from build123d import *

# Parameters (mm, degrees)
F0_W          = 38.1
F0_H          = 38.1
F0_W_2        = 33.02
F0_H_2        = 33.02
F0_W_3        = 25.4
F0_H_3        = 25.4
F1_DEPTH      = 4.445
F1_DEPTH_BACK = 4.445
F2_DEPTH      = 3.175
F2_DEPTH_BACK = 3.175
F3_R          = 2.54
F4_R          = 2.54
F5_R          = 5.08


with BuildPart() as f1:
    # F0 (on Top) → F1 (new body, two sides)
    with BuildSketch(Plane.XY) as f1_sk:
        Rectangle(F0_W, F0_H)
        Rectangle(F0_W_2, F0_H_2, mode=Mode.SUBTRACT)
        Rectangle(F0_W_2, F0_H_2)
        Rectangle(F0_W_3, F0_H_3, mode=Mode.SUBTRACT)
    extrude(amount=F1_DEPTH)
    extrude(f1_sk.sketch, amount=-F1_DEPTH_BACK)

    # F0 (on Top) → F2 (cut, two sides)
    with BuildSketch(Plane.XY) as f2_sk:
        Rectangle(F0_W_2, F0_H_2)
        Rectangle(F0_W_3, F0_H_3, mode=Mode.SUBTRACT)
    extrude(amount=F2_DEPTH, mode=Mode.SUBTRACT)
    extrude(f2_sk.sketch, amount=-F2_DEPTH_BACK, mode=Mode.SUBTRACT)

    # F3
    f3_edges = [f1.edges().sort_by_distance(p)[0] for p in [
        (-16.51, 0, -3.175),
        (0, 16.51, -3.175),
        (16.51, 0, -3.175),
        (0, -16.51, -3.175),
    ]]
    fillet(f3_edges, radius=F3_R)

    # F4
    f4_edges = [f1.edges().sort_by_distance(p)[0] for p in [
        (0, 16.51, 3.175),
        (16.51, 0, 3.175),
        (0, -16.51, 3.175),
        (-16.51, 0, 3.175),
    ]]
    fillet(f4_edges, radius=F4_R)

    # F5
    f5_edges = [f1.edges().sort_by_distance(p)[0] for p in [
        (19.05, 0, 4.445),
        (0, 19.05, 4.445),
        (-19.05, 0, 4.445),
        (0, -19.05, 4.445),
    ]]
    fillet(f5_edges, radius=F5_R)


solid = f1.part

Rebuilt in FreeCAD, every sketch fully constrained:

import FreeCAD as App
import Part
import Sketcher

V = App.Vector
Q = App.Units.Quantity


def edges_at(feature, points):
    """Names of the edges that pass closest to the given points."""
    edges = feature.Shape.Edges
    near = lambda p: min(range(len(edges)), key=lambda i: edges[i].distToShape(Part.Vertex(*p))[0])
    return sorted({f"Edge{near(p) + 1}" for p in points})

doc = App.newDocument("Part")
body = doc.addObject("PartDesign::Body", "Body")

# Sketch on XY plane
sketch1 = doc.addObject("Sketcher::SketchObject", "Sketch")
body.addObject(sketch1)
sketch1.AttachmentSupport = (doc.XY_Plane, [""])
sketch1.MapMode = "FlatFace"
sketch1.addGeometry(Part.LineSegment(V(-19, 19, 0), V(-19, -19, 0)), False)
sketch1.addGeometry(Part.LineSegment(V(-19, -19, 0), V(19, -19, 0)), False)
sketch1.addGeometry(Part.LineSegment(V(19, -19, 0), V(19, 19, 0)), False)
sketch1.addGeometry(Part.LineSegment(V(19, 19, 0), V(-19, 19, 0)), False)
sketch1.addGeometry(Part.LineSegment(V(13, -13, 0), V(-13, -13, 0)), False)
sketch1.addGeometry(Part.LineSegment(V(-13, -13, 0), V(-13, 13, 0)), False)
sketch1.addGeometry(Part.LineSegment(V(-13, 13, 0), V(13, 13, 0)), False)
sketch1.addGeometry(Part.LineSegment(V(13, 13, 0), V(13, -13, 0)), False)
sketch1.addConstraint(Sketcher.Constraint("Coincident", 0, 2, 1, 1))
sketch1.addConstraint(Sketcher.Constraint("Coincident", 1, 2, 2, 1))
sketch1.addConstraint(Sketcher.Constraint("Coincident", 2, 2, 3, 1))
sketch1.addConstraint(Sketcher.Constraint("Coincident", 3, 2, 0, 1))
sketch1.addConstraint(Sketcher.Constraint("Coincident", 4, 2, 5, 1))
sketch1.addConstraint(Sketcher.Constraint("Coincident", 5, 2, 6, 1))
sketch1.addConstraint(Sketcher.Constraint("Coincident", 6, 2, 7, 1))
sketch1.addConstraint(Sketcher.Constraint("Coincident", 7, 2, 4, 1))
sketch1.addConstraint(Sketcher.Constraint("Vertical", 0))
sketch1.addConstraint(Sketcher.Constraint("Horizontal", 1))
sketch1.addConstraint(Sketcher.Constraint("Vertical", 2))
sketch1.addConstraint(Sketcher.Constraint("Horizontal", 3))
sketch1.addConstraint(Sketcher.Constraint("Horizontal", 4))
sketch1.addConstraint(Sketcher.Constraint("Vertical", 5))
sketch1.addConstraint(Sketcher.Constraint("Horizontal", 6))
sketch1.addConstraint(Sketcher.Constraint("Vertical", 7))
sketch1.addConstraint(Sketcher.Constraint("Symmetric", 0, 2, 2, 2, -1, 1))
sketch1.addConstraint(Sketcher.Constraint("Symmetric", 4, 2, 6, 2, -1, 1))
sketch1.addConstraint(Sketcher.Constraint("Equal", 3, 0))
sketch1.addConstraint(Sketcher.Constraint("Equal", 6, 5))
sketch1.addConstraint(Sketcher.Constraint("DistanceX", 4, 2, 4, 1, Q("1 in")))
sketch1.addConstraint(Sketcher.Constraint("DistanceX", 1, 1, 1, 2, Q("1.5 in")))
pad1 = doc.addObject("PartDesign::Pad", "Pad")
body.addObject(pad1)
pad1.Profile = sketch1
pad1.Type = "TwoLengths"
pad1.Length = Q("0.175 in")
pad1.Length2 = Q("0.175 in")

# Sketch on XY plane
sketch2 = doc.addObject("Sketcher::SketchObject", "Sketch001")
body.addObject(sketch2)
sketch2.AttachmentSupport = (doc.XY_Plane, [""])
sketch2.MapMode = "FlatFace"
sketch2.addGeometry(Part.LineSegment(V(-17, 17, 0), V(-17, -17, 0)), False)
sketch2.addGeometry(Part.LineSegment(V(-17, -17, 0), V(17, -17, 0)), False)
sketch2.addGeometry(Part.LineSegment(V(17, -17, 0), V(17, 17, 0)), False)
sketch2.addGeometry(Part.LineSegment(V(17, 17, 0), V(-17, 17, 0)), False)
sketch2.addGeometry(Part.LineSegment(V(13, -13, 0), V(-13, -13, 0)), False)
sketch2.addGeometry(Part.LineSegment(V(-13, -13, 0), V(-13, 13, 0)), False)
sketch2.addGeometry(Part.LineSegment(V(-13, 13, 0), V(13, 13, 0)), False)
sketch2.addGeometry(Part.LineSegment(V(13, 13, 0), V(13, -13, 0)), False)
sketch2.addConstraint(Sketcher.Constraint("Coincident", 0, 2, 1, 1))
sketch2.addConstraint(Sketcher.Constraint("Coincident", 1, 2, 2, 1))
sketch2.addConstraint(Sketcher.Constraint("Coincident", 2, 2, 3, 1))
sketch2.addConstraint(Sketcher.Constraint("Coincident", 3, 2, 0, 1))
sketch2.addConstraint(Sketcher.Constraint("Coincident", 4, 2, 5, 1))
sketch2.addConstraint(Sketcher.Constraint("Coincident", 5, 2, 6, 1))
sketch2.addConstraint(Sketcher.Constraint("Coincident", 6, 2, 7, 1))
sketch2.addConstraint(Sketcher.Constraint("Coincident", 7, 2, 4, 1))
sketch2.addConstraint(Sketcher.Constraint("Vertical", 0))
sketch2.addConstraint(Sketcher.Constraint("Horizontal", 1))
sketch2.addConstraint(Sketcher.Constraint("Vertical", 2))
sketch2.addConstraint(Sketcher.Constraint("Horizontal", 3))
sketch2.addConstraint(Sketcher.Constraint("Horizontal", 4))
sketch2.addConstraint(Sketcher.Constraint("Vertical", 5))
sketch2.addConstraint(Sketcher.Constraint("Horizontal", 6))
sketch2.addConstraint(Sketcher.Constraint("Vertical", 7))
sketch2.addConstraint(Sketcher.Constraint("Symmetric", 0, 2, 2, 2, -1, 1))
sketch2.addConstraint(Sketcher.Constraint("Symmetric", 4, 2, 6, 2, -1, 1))
sketch2.addConstraint(Sketcher.Constraint("Equal", 3, 0))
sketch2.addConstraint(Sketcher.Constraint("Equal", 6, 5))
sketch2.addConstraint(Sketcher.Constraint("DistanceX", 4, 2, 4, 1, Q("1 in")))
sketch2.addConstraint(Sketcher.Constraint("DistanceX", 1, 1, 1, 2, Q("1.3 in")))
pocket1 = doc.addObject("PartDesign::Pocket", "Pocket")
body.addObject(pocket1)
pocket1.Profile = sketch2
pocket1.Type = "TwoLengths"
pocket1.Length = Q("0.125 in")
pocket1.Length2 = Q("0.125 in")
pocket1.Reversed = True
doc.recompute()

fillet = doc.addObject("PartDesign::Fillet", "Fillet")
body.addObject(fillet)
fillet.Base = (pocket1, edges_at(pocket1, [
    (-16.51, 0, -3.175),
    (0, 16.51, -3.175),
    (16.51, 0, -3.175),
    (0, -16.51, -3.175),
]))
fillet.Radius = Q("0.1 in")
doc.recompute()

fillet2 = doc.addObject("PartDesign::Fillet", "Fillet001")
body.addObject(fillet2)
fillet2.Base = (fillet, edges_at(fillet, [
    (0, 16.51, 3.175),
    (16.51, 0, 3.175),
    (0, -16.51, 3.175),
    (-16.51, 0, 3.175),
]))
fillet2.Radius = Q("0.1 in")
doc.recompute()

fillet3 = doc.addObject("PartDesign::Fillet", "Fillet002")
body.addObject(fillet3)
fillet3.Base = (fillet2, edges_at(fillet2, [
    (19.05, 0, 4.445),
    (0, 19.05, 4.445),
    (-19.05, 0, 4.445),
    (0, -19.05, 4.445),
]))
fillet3.Radius = Q("0.2 in")

doc.recompute()
